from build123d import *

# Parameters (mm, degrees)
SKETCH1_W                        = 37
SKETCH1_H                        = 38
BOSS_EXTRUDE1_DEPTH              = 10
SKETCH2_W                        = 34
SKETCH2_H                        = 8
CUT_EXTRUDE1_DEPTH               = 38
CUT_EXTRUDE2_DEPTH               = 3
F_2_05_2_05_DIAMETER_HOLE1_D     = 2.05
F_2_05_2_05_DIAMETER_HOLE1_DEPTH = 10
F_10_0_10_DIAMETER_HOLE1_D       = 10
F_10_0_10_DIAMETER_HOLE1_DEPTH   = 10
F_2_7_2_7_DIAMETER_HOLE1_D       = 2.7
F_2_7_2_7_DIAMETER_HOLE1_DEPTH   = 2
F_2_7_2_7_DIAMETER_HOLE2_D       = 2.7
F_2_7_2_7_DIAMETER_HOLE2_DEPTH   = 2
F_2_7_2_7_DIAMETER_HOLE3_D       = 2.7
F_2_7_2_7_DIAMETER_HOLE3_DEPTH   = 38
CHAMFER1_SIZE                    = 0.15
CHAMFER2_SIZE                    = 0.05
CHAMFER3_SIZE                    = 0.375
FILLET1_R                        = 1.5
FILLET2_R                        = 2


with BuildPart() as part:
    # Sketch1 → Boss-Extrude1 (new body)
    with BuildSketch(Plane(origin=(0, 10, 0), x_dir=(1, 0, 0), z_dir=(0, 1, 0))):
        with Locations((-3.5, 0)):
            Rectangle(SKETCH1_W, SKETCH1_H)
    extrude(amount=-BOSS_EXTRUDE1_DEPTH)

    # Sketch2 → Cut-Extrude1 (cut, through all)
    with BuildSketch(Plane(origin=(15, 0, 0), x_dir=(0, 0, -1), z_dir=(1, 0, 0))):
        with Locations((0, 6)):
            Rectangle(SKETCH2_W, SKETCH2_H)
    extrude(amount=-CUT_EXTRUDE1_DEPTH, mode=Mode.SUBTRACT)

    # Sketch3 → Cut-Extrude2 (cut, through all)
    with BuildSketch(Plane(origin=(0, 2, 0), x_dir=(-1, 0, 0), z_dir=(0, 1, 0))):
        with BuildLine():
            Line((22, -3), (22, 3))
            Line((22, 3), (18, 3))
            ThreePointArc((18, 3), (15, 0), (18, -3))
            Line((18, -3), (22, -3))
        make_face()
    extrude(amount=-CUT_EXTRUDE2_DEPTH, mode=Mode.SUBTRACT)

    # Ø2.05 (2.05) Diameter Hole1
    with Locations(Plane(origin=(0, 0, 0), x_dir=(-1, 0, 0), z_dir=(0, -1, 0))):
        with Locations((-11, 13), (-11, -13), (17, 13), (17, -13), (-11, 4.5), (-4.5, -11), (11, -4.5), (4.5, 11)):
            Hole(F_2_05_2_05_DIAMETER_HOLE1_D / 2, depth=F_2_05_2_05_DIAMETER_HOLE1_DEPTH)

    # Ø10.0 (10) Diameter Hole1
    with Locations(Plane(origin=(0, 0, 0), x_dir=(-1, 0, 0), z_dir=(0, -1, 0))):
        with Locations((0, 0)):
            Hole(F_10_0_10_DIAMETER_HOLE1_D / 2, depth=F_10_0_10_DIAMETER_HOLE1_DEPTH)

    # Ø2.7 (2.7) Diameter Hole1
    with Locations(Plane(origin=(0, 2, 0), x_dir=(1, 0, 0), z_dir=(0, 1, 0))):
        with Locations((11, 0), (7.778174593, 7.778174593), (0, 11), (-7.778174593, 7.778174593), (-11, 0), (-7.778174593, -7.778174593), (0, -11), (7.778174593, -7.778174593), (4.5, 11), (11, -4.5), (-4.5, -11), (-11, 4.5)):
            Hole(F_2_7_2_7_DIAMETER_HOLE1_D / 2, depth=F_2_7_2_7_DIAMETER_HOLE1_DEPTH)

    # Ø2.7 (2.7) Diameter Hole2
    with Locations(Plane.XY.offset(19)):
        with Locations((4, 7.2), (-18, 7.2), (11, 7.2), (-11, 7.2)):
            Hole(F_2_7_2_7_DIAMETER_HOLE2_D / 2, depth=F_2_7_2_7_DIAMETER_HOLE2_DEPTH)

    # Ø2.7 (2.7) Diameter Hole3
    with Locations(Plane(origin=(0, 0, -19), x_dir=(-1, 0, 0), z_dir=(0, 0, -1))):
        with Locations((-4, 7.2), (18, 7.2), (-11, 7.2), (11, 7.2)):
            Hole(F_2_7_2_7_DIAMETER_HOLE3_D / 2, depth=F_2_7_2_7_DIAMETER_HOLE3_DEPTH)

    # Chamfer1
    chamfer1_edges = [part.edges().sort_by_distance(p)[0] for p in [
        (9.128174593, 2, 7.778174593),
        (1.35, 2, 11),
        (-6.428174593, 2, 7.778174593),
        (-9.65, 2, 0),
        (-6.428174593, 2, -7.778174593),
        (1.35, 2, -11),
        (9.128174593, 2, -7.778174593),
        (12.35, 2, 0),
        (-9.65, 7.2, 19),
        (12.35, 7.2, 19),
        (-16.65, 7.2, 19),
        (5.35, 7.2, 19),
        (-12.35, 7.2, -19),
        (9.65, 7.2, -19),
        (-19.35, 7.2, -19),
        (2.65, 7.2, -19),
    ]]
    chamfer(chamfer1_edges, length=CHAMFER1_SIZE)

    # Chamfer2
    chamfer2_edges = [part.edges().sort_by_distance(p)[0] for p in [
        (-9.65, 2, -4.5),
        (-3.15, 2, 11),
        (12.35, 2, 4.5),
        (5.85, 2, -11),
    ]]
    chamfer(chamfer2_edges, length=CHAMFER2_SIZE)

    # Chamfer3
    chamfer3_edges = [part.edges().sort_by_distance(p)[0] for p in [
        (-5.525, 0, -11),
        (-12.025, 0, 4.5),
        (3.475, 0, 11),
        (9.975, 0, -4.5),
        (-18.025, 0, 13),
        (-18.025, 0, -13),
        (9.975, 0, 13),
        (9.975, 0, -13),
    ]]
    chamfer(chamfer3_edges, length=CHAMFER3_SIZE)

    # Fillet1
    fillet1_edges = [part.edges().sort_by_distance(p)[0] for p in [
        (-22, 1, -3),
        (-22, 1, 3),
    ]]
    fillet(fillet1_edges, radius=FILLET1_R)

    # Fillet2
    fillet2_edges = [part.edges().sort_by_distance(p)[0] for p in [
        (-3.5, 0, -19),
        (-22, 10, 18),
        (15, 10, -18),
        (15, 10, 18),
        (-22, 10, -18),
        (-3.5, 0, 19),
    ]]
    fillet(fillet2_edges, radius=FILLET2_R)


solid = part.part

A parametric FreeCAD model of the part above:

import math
import FreeCAD as App
import Part
import Sketcher

V = App.Vector


def edges_at(feature, points):
    """Names of the edges that pass closest to the given points."""
    edges = feature.Shape.Edges
    near = lambda p: min(range(len(edges)), key=lambda i: edges[i].distToShape(Part.Vertex(*p))[0])
    return sorted({f"Edge{near(p) + 1}" for p in points})

doc = App.newDocument("Part")
body = doc.addObject("PartDesign::Body", "Body")

# Sketch on XZ plane
sketch1 = doc.addObject("Sketcher::SketchObject", "Sketch")
body.addObject(sketch1)
sketch1.AttachmentSupport = (doc.XZ_Plane, [""])
sketch1.MapMode = "FlatFace"
sketch1.AttachmentOffset = App.Placement(V(0, 0, -10), App.Rotation())
sketch1.addGeometry(Part.LineSegment(V(-22, -19, 0), V(-22, 19, 0)), False)
sketch1.addGeometry(Part.LineSegment(V(-22, 19, 0), V(15, 19, 0)), False)
sketch1.addGeometry(Part.LineSegment(V(15, 19, 0), V(15, -19, 0)), False)
sketch1.addGeometry(Part.LineSegment(V(15, -19, 0), V(-22, -19, 0)), False)
sketch1.addConstraint(Sketcher.Constraint("Coincident", 0, 2, 1, 1))
sketch1.addConstraint(Sketcher.Constraint("Coincident", 1, 2, 2, 1))
sketch1.addConstraint(Sketcher.Constraint("Coincident", 2, 2, 3, 1))
sketch1.addConstraint(Sketcher.Constraint("Coincident", 3, 2, 0, 1))
sketch1.addConstraint(Sketcher.Constraint("Vertical", 0))
sketch1.addConstraint(Sketcher.Constraint("Horizontal", 1))
sketch1.addConstraint(Sketcher.Constraint("Vertical", 2))
sketch1.addConstraint(Sketcher.Constraint("Horizontal", 3))
sketch1.addConstraint(Sketcher.Constraint("DistanceX", 1, 1, 1, 2, 37.0))
sketch1.addConstraint(Sketcher.Constraint("DistanceY", 0, 1, 0, 2, 38.0))
sketch1.addConstraint(Sketcher.Constraint("DistanceX", 0, 2, -1, 1, 22.0))
sketch1.addConstraint(Sketcher.Constraint("DistanceY", -1, 1, 0, 2, 19.0))
pad1 = doc.addObject("PartDesign::Pad", "Pad")
body.addObject(pad1)
pad1.Profile = sketch1
pad1.Length = 10

# Sketch on YZ plane
sketch2 = doc.addObject("Sketcher::SketchObject", "Sketch001")
body.addObject(sketch2)
sketch2.AttachmentSupport = (doc.YZ_Plane, [""])
sketch2.MapMode = "FlatFace"
sketch2.AttachmentOffset = App.Placement(V(0, 0, 15), App.Rotation())
sketch2.addGeometry(Part.LineSegment(V(10, 17, 0), V(2, 17, 0)), False)
sketch2.addGeometry(Part.LineSegment(V(2, 17, 0), V(2, -17, 0)), False)
sketch2.addGeometry(Part.LineSegment(V(2, -17, 0), V(10, -17, 0)), False)
sketch2.addGeometry(Part.LineSegment(V(10, -17, 0), V(10, 17, 0)), False)
sketch2.addConstraint(Sketcher.Constraint("Coincident", 0, 2, 1, 1))
sketch2.addConstraint(Sketcher.Constraint("Coincident", 1, 2, 2, 1))
sketch2.addConstraint(Sketcher.Constraint("Coincident", 2, 2, 3, 1))
sketch2.addConstraint(Sketcher.Constraint("Coincident", 3, 2, 0, 1))
sketch2.addConstraint(Sketcher.Constraint("Horizontal", 0))
sketch2.addConstraint(Sketcher.Constraint("Vertical", 1))
sketch2.addConstraint(Sketcher.Constraint("Horizontal", 2))
sketch2.addConstraint(Sketcher.Constraint("Vertical", 3))
sketch2.addConstraint(Sketcher.Constraint("DistanceX", 0, 2, 0, 1, 8.0))
sketch2.addConstraint(Sketcher.Constraint("DistanceY", 1, 2, 1, 1, 34.0))
sketch2.addConstraint(Sketcher.Constraint("DistanceX", -1, 1, 0, 2, 2.0))
sketch2.addConstraint(Sketcher.Constraint("DistanceY", -1, 1, 0, 2, 17.0))
pocket1 = doc.addObject("PartDesign::Pocket", "Pocket")
body.addObject(pocket1)
pocket1.Profile = sketch2
pocket1.Type = "ThroughAll"

# Sketch on XZ plane
sketch3 = doc.addObject("Sketcher::SketchObject", "Sketch002")
body.addObject(sketch3)
sketch3.AttachmentSupport = (doc.XZ_Plane, [""])
sketch3.MapMode = "FlatFace"
sketch3.AttachmentOffset = App.Placement(V(0, 0, -2), App.Rotation())
sketch3.addGeometry(Part.LineSegment(V(-22, -3, 0), V(-22, 3, 0)), False)
sketch3.addGeometry(Part.LineSegment(V(-22, 3, 0), V(-18, 3, 0)), False)
sketch3.addGeometry(Part.ArcOfCircle(Part.Circle(V(-18, 0, 0), V(0, 0, 1), 3), math.radians(-90), math.radians(90)), False)
sketch3.addGeometry(Part.LineSegment(V(-18, -3, 0), V(-22, -3, 0)), False)
sketch3.addConstraint(Sketcher.Constraint("Coincident", 0, 2, 1, 1))
sketch3.addConstraint(Sketcher.Constraint("Tangent", 1, 2, 2, 2))
sketch3.addConstraint(Sketcher.Constraint("Tangent", 2, 1, 3, 1))
sketch3.addConstraint(Sketcher.Constraint("Coincident", 3, 2, 0, 1))
sketch3.addConstraint(Sketcher.Constraint("Vertical", 0))
sketch3.addConstraint(Sketcher.Constraint("Horizontal", 1))
sketch3.addConstraint(Sketcher.Constraint("Horizontal", 3))
sketch3.addConstraint(Sketcher.Constraint("PointOnObject", 2, 3, -1))
sketch3.addConstraint(Sketcher.Constraint("Radius", 2, 3.0))
sketch3.addConstraint(Sketcher.Constraint("DistanceX", 1, 1, 1, 2, 4.0))
sketch3.addConstraint(Sketcher.Constraint("DistanceX", 2, 3, -1, 1, 18.0))
pocket2 = doc.addObject("PartDesign::Pocket", "Pocket001")
body.addObject(pocket2)
pocket2.Profile = sketch3
pocket2.Type = "ThroughAll"
pocket2.Reversed = True

# Sketch on XZ plane
sketch4 = doc.addObject("Sketcher::SketchObject", "Sketch003")
body.addObject(sketch4)
sketch4.AttachmentSupport = (doc.XZ_Plane, [""])
sketch4.MapMode = "FlatFace"
sketch4.addGeometry(Part.Circle(V(11, -13, 0), V(0, 0, 1), 1), False)
sketch4.addGeometry(Part.Circle(V(11, 13, 0), V(0, 0, 1), 1), False)
sketch4.addGeometry(Part.Circle(V(-17, -13, 0), V(0, 0, 1), 1), False)
sketch4.addGeometry(Part.Circle(V(-17, 13, 0), V(0, 0, 1), 1), False)
sketch4.addGeometry(Part.Circle(V(11, -4.5, 0), V(0, 0, 1), 1), False)
sketch4.addGeometry(Part.Circle(V(4.5, 11, 0), V(0, 0, 1), 1), False)
sketch4.addGeometry(Part.Circle(V(-11, 4.5, 0), V(0, 0, 1), 1), False)
sketch4.addGeometry(Part.Circle(V(-4.5, -11, 0), V(0, 0, 1), 1), False)
sketch4.addConstraint(Sketcher.Constraint("Equal", 0, 1))
sketch4.addConstraint(Sketcher.Constraint("Equal", 1, 2))
sketch4.addConstraint(Sketcher.Constraint("Equal", 2, 3))
sketch4.addConstraint(Sketcher.Constraint("Equal", 3, 4))
sketch4.addConstraint(Sketcher.Constraint("Equal", 4, 5))
sketch4.addConstraint(Sketcher.Constraint("Equal", 5, 6))
sketch4.addConstraint(Sketcher.Constraint("Equal", 6, 7))
sketch4.addConstraint(Sketcher.Constraint("Symmetric", 4, 3, 6, 3, -1, 1))
sketch4.addConstraint(Sketcher.Constraint("Symmetric", 5, 3, 7, 3, -1, 1))
sketch4.addConstraint(Sketcher.Constraint("Symmetric", 0, 3, 1, 3, -1))
sketch4.addConstraint(Sketcher.Constraint("Symmetric", 2, 3, 3, 3, -1))
sketch4.addConstraint(Sketcher.Constraint("Horizontal", 0, 3, 2, 3))
sketch4.addConstraint(Sketcher.Constraint("Vertical", 1, 3, 4, 3))
sketch4.addConstraint(Sketcher.Constraint("Diameter", 0, 2.05))
sketch4.addConstraint(Sketcher.Constraint("DistanceX", -1, 1, 0, 3, 11.0))
sketch4.addConstraint(Sketcher.Constraint("DistanceY", 0, 3, -1, 1, 13.0))
sketch4.addConstraint(Sketcher.Constraint("DistanceX", 2, 3, -1, 1, 17.0))
sketch4.addConstraint(Sketcher.Constraint("DistanceY", -1, 1, 5, 3, 11.0))
sketch4.addConstraint(Sketcher.Constraint("DistanceY", 4, 3, 6, 3, 9.0))
sketch4.addConstraint(Sketcher.Constraint("DistanceX", 7, 3, 5, 3, 9.0))
doc.recompute()
hole = doc.addObject("PartDesign::Hole", "Hole")
body.addObject(hole)
hole.Profile = sketch4
hole.ThreadType = "None"
hole.Diameter = 2.05
hole.DepthType = "Dimension"
hole.Depth = 10
hole.DrillPoint = "Flat"

# Sketch on XZ plane
sketch5 = doc.addObject("Sketcher::SketchObject", "Sketch004")
body.addObject(sketch5)
sketch5.AttachmentSupport = (doc.XZ_Plane, [""])
sketch5.MapMode = "FlatFace"
sketch5.addGeometry(Part.Circle(V(0, 0, 0), V(0, 0, 1), 5), False)
sketch5.addConstraint(Sketcher.Constraint("Coincident", 0, 3, -1, 1))
sketch5.addConstraint(Sketcher.Constraint("Diameter", 0, 10.0))
doc.recompute()
hole2 = doc.addObject("PartDesign::Hole", "Hole001")
body.addObject(hole2)
hole2.Profile = sketch5
hole2.ThreadType = "None"
hole2.Diameter = 10
hole2.DepthType = "Dimension"
hole2.Depth = 10
hole2.DrillPoint = "Flat"

# Sketch on XZ plane
sketch6 = doc.addObject("Sketcher::SketchObject", "Sketch005")
body.addObject(sketch6)
sketch6.AttachmentSupport = (doc.XZ_Plane, [""])
sketch6.MapMode = "FlatFace"
sketch6.AttachmentOffset = App.Placement(V(0, 0, -2), App.Rotation())
sketch6.addGeometry(Part.Circle(V(11, 0, 0), V(0, 0, 1), 1.4), False)
sketch6.addGeometry(Part.Circle(V(7.8, -7.8, 0), V(0, 0, 1), 1.4), False)
sketch6.addGeometry(Part.Circle(V(0, -11, 0), V(0, 0, 1), 1.4), False)
sketch6.addGeometry(Part.Circle(V(-7.8, -7.8, 0), V(0, 0, 1), 1.4), False)
sketch6.addGeometry(Part.Circle(V(-11, 0, 0), V(0, 0, 1), 1.4), False)
sketch6.addGeometry(Part.Circle(V(-7.8, 7.8, 0), V(0, 0, 1), 1.4), False)
sketch6.addGeometry(Part.Circle(V(0, 11, 0), V(0, 0, 1), 1.4), False)
sketch6.addGeometry(Part.Circle(V(7.8, 7.8, 0), V(0, 0, 1), 1.4), False)
sketch6.addGeometry(Part.Circle(V(4.5, -11, 0), V(0, 0, 1), 1.4), False)
sketch6.addGeometry(Part.Circle(V(11, 4.5, 0), V(0, 0, 1), 1.4), False)
sketch6.addGeometry(Part.Circle(V(-4.5, 11, 0), V(0, 0, 1), 1.4), False)
sketch6.addGeometry(Part.Circle(V(-11, -4.5, 0), V(0, 0, 1), 1.4), False)
sketch6.addConstraint(Sketcher.Constraint("Equal", 0, 1))
sketch6.addConstraint(Sketcher.Constraint("Equal", 1, 2))
sketch6.addConstraint(Sketcher.Constraint("Equal", 2, 3))
sketch6.addConstraint(Sketcher.Constraint("Equal", 3, 4))
sketch6.addConstraint(Sketcher.Constraint("Equal", 4, 5))
sketch6.addConstraint(Sketcher.Constraint("Equal", 5, 6))
sketch6.addConstraint(Sketcher.Constraint("Equal", 6, 7))
sketch6.addConstraint(Sketcher.Constraint("Equal", 7, 8))
sketch6.addConstraint(Sketcher.Constraint("Equal", 8, 9))
sketch6.addConstraint(Sketcher.Constraint("Equal", 9, 10))
sketch6.addConstraint(Sketcher.Constraint("Equal", 10, 11))
sketch6.addConstraint(Sketcher.Constraint("Symmetric", 0, 3, 4, 3, -1, 1))
sketch6.addConstraint(Sketcher.Constraint("Symmetric", 1, 3, 5, 3, -1, 1))
sketch6.addConstraint(Sketcher.Constraint("Symmetric", 2, 3, 6, 3, -1, 1))
sketch6.addConstraint(Sketcher.Constraint("Symmetric", 3, 3, 7, 3, -1, 1))
sketch6.addConstraint(Sketcher.Constraint("Symmetric", 8, 3, 10, 3, -1, 1))
sketch6.addConstraint(Sketcher.Constraint("Symmetric", 9, 3, 11, 3, -1, 1))
sketch6.addConstraint(Sketcher.Constraint("Symmetric", 1, 3, 3, 3, -2))
sketch6.addConstraint(Sketcher.Constraint("PointOnObject", 0, 3, -1))
sketch6.addConstraint(Sketcher.Constraint("PointOnObject", 2, 3, -2))
sketch6.addConstraint(Sketcher.Constraint("Horizontal", 2, 3, 8, 3))
sketch6.addConstraint(Sketcher.Constraint("Vertical", 0, 3, 9, 3))
sketch6.addConstraint(Sketcher.Constraint("Diameter", 0, 2.7))
sketch6.addConstraint(Sketcher.Constraint("DistanceX", -1, 1, 0, 3, 11.0))
sketch6.addConstraint(Sketcher.Constraint("DistanceY", 2, 3, -1, 1, 11.0))
sketch6.addConstraint(Sketcher.Constraint("DistanceX", -1, 1, 8, 3, 4.5))
sketch6.addConstraint(Sketcher.Constraint("DistanceY", -1, 1, 9, 3, 4.5))
sketch6.addConstraint(Sketcher.Constraint("DistanceX", 3, 3, 1, 3, 15.556349))
sketch6.addConstraint(Sketcher.Constraint("DistanceY", 3, 3, 5, 3, 15.556349))
doc.recompute()
hole3 = doc.addObject("PartDesign::Hole", "Hole002")
body.addObject(hole3)
hole3.Profile = sketch6
hole3.ThreadType = "None"
hole3.Diameter = 2.7
hole3.DepthType = "Dimension"
hole3.Depth = 2
hole3.DrillPoint = "Flat"
hole3.Reversed = True

# Sketch on XY plane
sketch7 = doc.addObject("Sketcher::SketchObject", "Sketch006")
body.addObject(sketch7)
sketch7.AttachmentSupport = (doc.XY_Plane, [""])
sketch7.MapMode = "FlatFace"
sketch7.AttachmentOffset = App.Placement(V(0, 0, 19), App.Rotation())
sketch7.addGeometry(Part.Circle(V(4, 7.2, 0), V(0, 0, 1), 1.4), False)
sketch7.addGeometry(Part.Circle(V(-18, 7.2, 0), V(0, 0, 1), 1.4), False)
sketch7.addGeometry(Part.Circle(V(11, 7.2, 0), V(0, 0, 1), 1.4), False)
sketch7.addGeometry(Part.Circle(V(-11, 7.2, 0), V(0, 0, 1), 1.4), False)
sketch7.addConstraint(Sketcher.Constraint("Equal", 0, 1))
sketch7.addConstraint(Sketcher.Constraint("Equal", 1, 2))
sketch7.addConstraint(Sketcher.Constraint("Equal", 2, 3))
sketch7.addConstraint(Sketcher.Constraint("Symmetric", 2, 3, 3, 3, -2))
sketch7.addConstraint(Sketcher.Constraint("Horizontal", 0, 3, 1, 3))
sketch7.addConstraint(Sketcher.Constraint("Horizontal", 1, 3, 2, 3))
sketch7.addConstraint(Sketcher.Constraint("Diameter", 0, 2.7))
sketch7.addConstraint(Sketcher.Constraint("DistanceX", -1, 1, 0, 3, 4.0))
sketch7.addConstraint(Sketcher.Constraint("DistanceX", 1, 3, -1, 1, 18.0))
sketch7.addConstraint(Sketcher.Constraint("DistanceX", -1, 1, 2, 3, 11.0))
sketch7.addConstraint(Sketcher.Constraint("DistanceY", -1, 1, 0, 3, 7.2))
doc.recompute()
hole4 = doc.addObject("PartDesign::Hole", "Hole003")
body.addObject(hole4)
hole4.Profile = sketch7
hole4.ThreadType = "None"
hole4.Diameter = 2.7
hole4.DepthType = "Dimension"
hole4.Depth = 2
hole4.DrillPoint = "Flat"

# Sketch on XY plane
sketch8 = doc.addObject("Sketcher::SketchObject", "Sketch007")
body.addObject(sketch8)
sketch8.AttachmentSupport = (doc.XY_Plane, [""])
sketch8.MapMode = "FlatFace"
sketch8.AttachmentOffset = App.Placement(V(0, 0, -19), App.Rotation())
sketch8.addGeometry(Part.Circle(V(4, 7.2, 0), V(0, 0, 1), 1.4), False)
sketch8.addGeometry(Part.Circle(V(-18, 7.2, 0), V(0, 0, 1), 1.4), False)
sketch8.addGeometry(Part.Circle(V(11, 7.2, 0), V(0, 0, 1), 1.4), False)
sketch8.addGeometry(Part.Circle(V(-11, 7.2, 0), V(0, 0, 1), 1.4), False)
sketch8.addConstraint(Sketcher.Constraint("Equal", 0, 1))
sketch8.addConstraint(Sketcher.Constraint("Equal", 1, 2))
sketch8.addConstraint(Sketcher.Constraint("Equal", 2, 3))
sketch8.addConstraint(Sketcher.Constraint("Symmetric", 2, 3, 3, 3, -2))
sketch8.addConstraint(Sketcher.Constraint("Horizontal", 0, 3, 1, 3))
sketch8.addConstraint(Sketcher.Constraint("Horizontal", 1, 3, 2, 3))
sketch8.addConstraint(Sketcher.Constraint("Diameter", 0, 2.7))
sketch8.addConstraint(Sketcher.Constraint("DistanceX", -1, 1, 0, 3, 4.0))
sketch8.addConstraint(Sketcher.Constraint("DistanceX", 1, 3, -1, 1, 18.0))
sketch8.addConstraint(Sketcher.Constraint("DistanceX", -1, 1, 2, 3, 11.0))
sketch8.addConstraint(Sketcher.Constraint("DistanceY", -1, 1, 0, 3, 7.2))
doc.recompute()
hole5 = doc.addObject("PartDesign::Hole", "Hole004")
body.addObject(hole5)
hole5.Profile = sketch8
hole5.ThreadType = "None"
hole5.Diameter = 2.7
hole5.DepthType = "Dimension"
hole5.Depth = 38
hole5.DrillPoint = "Flat"
hole5.Reversed = True
doc.recompute()

chamfer = doc.addObject("PartDesign::Chamfer", "Chamfer")
body.addObject(chamfer)
chamfer.Base = (hole5, edges_at(hole5, [
    (9.128, 2, 7.778),
    (1.35, 2, 11),
    (-6.428, 2, 7.778),
    (-9.65, 2, 0),
    (-6.428, 2, -7.778),
    (1.35, 2, -11),
    (9.128, 2, -7.778),
    (12.35, 2, 0),
    (-9.65, 7.2, 19),
    (12.35, 7.2, 19),
    (-16.65, 7.2, 19),
    (5.35, 7.2, 19),
    (-12.35, 7.2, -19),
    (9.65, 7.2, -19),
    (-19.35, 7.2, -19),
    (2.65, 7.2, -19),
]))
chamfer.Size = 0.15
doc.recompute()

chamfer2 = doc.addObject("PartDesign::Chamfer", "Chamfer001")
body.addObject(chamfer2)
chamfer2.Base = (chamfer, edges_at(chamfer, [
    (-9.65, 2, -4.5),
    (-3.15, 2, 11),
    (12.35, 2, 4.5),
    (5.85, 2, -11),
]))
chamfer2.Size = 0.05
doc.recompute()

chamfer3 = doc.addObject("PartDesign::Chamfer", "Chamfer002")
body.addObject(chamfer3)
chamfer3.Base = (chamfer2, edges_at(chamfer2, [
    (-5.525, 0, -11),
    (-12.025, 0, 4.5),
    (3.475, 0, 11),
    (9.975, 0, -4.5),
    (-18.025, 0, 13),
    (-18.025, 0, -13),
    (9.975, 0, 13),
    (9.975, 0, -13),
]))
chamfer3.Size = 0.375
doc.recompute()

fillet = doc.addObject("PartDesign::Fillet", "Fillet")
body.addObject(fillet)
fillet.Base = (chamfer3, edges_at(chamfer3, [(-22, 1, -3), (-22, 1, 3)]))
fillet.Radius = 1.5
doc.recompute()

fillet2 = doc.addObject("PartDesign::Fillet", "Fillet001")
body.addObject(fillet2)
fillet2.Base = (fillet, edges_at(fillet, [
    (-3.5, 0, -19),
    (-22, 10, 18),
    (15, 10, -18),
    (15, 10, 18),
    (-22, 10, -18),
    (-3.5, 0, 19),
]))
fillet2.Radius = 2

doc.recompute()
